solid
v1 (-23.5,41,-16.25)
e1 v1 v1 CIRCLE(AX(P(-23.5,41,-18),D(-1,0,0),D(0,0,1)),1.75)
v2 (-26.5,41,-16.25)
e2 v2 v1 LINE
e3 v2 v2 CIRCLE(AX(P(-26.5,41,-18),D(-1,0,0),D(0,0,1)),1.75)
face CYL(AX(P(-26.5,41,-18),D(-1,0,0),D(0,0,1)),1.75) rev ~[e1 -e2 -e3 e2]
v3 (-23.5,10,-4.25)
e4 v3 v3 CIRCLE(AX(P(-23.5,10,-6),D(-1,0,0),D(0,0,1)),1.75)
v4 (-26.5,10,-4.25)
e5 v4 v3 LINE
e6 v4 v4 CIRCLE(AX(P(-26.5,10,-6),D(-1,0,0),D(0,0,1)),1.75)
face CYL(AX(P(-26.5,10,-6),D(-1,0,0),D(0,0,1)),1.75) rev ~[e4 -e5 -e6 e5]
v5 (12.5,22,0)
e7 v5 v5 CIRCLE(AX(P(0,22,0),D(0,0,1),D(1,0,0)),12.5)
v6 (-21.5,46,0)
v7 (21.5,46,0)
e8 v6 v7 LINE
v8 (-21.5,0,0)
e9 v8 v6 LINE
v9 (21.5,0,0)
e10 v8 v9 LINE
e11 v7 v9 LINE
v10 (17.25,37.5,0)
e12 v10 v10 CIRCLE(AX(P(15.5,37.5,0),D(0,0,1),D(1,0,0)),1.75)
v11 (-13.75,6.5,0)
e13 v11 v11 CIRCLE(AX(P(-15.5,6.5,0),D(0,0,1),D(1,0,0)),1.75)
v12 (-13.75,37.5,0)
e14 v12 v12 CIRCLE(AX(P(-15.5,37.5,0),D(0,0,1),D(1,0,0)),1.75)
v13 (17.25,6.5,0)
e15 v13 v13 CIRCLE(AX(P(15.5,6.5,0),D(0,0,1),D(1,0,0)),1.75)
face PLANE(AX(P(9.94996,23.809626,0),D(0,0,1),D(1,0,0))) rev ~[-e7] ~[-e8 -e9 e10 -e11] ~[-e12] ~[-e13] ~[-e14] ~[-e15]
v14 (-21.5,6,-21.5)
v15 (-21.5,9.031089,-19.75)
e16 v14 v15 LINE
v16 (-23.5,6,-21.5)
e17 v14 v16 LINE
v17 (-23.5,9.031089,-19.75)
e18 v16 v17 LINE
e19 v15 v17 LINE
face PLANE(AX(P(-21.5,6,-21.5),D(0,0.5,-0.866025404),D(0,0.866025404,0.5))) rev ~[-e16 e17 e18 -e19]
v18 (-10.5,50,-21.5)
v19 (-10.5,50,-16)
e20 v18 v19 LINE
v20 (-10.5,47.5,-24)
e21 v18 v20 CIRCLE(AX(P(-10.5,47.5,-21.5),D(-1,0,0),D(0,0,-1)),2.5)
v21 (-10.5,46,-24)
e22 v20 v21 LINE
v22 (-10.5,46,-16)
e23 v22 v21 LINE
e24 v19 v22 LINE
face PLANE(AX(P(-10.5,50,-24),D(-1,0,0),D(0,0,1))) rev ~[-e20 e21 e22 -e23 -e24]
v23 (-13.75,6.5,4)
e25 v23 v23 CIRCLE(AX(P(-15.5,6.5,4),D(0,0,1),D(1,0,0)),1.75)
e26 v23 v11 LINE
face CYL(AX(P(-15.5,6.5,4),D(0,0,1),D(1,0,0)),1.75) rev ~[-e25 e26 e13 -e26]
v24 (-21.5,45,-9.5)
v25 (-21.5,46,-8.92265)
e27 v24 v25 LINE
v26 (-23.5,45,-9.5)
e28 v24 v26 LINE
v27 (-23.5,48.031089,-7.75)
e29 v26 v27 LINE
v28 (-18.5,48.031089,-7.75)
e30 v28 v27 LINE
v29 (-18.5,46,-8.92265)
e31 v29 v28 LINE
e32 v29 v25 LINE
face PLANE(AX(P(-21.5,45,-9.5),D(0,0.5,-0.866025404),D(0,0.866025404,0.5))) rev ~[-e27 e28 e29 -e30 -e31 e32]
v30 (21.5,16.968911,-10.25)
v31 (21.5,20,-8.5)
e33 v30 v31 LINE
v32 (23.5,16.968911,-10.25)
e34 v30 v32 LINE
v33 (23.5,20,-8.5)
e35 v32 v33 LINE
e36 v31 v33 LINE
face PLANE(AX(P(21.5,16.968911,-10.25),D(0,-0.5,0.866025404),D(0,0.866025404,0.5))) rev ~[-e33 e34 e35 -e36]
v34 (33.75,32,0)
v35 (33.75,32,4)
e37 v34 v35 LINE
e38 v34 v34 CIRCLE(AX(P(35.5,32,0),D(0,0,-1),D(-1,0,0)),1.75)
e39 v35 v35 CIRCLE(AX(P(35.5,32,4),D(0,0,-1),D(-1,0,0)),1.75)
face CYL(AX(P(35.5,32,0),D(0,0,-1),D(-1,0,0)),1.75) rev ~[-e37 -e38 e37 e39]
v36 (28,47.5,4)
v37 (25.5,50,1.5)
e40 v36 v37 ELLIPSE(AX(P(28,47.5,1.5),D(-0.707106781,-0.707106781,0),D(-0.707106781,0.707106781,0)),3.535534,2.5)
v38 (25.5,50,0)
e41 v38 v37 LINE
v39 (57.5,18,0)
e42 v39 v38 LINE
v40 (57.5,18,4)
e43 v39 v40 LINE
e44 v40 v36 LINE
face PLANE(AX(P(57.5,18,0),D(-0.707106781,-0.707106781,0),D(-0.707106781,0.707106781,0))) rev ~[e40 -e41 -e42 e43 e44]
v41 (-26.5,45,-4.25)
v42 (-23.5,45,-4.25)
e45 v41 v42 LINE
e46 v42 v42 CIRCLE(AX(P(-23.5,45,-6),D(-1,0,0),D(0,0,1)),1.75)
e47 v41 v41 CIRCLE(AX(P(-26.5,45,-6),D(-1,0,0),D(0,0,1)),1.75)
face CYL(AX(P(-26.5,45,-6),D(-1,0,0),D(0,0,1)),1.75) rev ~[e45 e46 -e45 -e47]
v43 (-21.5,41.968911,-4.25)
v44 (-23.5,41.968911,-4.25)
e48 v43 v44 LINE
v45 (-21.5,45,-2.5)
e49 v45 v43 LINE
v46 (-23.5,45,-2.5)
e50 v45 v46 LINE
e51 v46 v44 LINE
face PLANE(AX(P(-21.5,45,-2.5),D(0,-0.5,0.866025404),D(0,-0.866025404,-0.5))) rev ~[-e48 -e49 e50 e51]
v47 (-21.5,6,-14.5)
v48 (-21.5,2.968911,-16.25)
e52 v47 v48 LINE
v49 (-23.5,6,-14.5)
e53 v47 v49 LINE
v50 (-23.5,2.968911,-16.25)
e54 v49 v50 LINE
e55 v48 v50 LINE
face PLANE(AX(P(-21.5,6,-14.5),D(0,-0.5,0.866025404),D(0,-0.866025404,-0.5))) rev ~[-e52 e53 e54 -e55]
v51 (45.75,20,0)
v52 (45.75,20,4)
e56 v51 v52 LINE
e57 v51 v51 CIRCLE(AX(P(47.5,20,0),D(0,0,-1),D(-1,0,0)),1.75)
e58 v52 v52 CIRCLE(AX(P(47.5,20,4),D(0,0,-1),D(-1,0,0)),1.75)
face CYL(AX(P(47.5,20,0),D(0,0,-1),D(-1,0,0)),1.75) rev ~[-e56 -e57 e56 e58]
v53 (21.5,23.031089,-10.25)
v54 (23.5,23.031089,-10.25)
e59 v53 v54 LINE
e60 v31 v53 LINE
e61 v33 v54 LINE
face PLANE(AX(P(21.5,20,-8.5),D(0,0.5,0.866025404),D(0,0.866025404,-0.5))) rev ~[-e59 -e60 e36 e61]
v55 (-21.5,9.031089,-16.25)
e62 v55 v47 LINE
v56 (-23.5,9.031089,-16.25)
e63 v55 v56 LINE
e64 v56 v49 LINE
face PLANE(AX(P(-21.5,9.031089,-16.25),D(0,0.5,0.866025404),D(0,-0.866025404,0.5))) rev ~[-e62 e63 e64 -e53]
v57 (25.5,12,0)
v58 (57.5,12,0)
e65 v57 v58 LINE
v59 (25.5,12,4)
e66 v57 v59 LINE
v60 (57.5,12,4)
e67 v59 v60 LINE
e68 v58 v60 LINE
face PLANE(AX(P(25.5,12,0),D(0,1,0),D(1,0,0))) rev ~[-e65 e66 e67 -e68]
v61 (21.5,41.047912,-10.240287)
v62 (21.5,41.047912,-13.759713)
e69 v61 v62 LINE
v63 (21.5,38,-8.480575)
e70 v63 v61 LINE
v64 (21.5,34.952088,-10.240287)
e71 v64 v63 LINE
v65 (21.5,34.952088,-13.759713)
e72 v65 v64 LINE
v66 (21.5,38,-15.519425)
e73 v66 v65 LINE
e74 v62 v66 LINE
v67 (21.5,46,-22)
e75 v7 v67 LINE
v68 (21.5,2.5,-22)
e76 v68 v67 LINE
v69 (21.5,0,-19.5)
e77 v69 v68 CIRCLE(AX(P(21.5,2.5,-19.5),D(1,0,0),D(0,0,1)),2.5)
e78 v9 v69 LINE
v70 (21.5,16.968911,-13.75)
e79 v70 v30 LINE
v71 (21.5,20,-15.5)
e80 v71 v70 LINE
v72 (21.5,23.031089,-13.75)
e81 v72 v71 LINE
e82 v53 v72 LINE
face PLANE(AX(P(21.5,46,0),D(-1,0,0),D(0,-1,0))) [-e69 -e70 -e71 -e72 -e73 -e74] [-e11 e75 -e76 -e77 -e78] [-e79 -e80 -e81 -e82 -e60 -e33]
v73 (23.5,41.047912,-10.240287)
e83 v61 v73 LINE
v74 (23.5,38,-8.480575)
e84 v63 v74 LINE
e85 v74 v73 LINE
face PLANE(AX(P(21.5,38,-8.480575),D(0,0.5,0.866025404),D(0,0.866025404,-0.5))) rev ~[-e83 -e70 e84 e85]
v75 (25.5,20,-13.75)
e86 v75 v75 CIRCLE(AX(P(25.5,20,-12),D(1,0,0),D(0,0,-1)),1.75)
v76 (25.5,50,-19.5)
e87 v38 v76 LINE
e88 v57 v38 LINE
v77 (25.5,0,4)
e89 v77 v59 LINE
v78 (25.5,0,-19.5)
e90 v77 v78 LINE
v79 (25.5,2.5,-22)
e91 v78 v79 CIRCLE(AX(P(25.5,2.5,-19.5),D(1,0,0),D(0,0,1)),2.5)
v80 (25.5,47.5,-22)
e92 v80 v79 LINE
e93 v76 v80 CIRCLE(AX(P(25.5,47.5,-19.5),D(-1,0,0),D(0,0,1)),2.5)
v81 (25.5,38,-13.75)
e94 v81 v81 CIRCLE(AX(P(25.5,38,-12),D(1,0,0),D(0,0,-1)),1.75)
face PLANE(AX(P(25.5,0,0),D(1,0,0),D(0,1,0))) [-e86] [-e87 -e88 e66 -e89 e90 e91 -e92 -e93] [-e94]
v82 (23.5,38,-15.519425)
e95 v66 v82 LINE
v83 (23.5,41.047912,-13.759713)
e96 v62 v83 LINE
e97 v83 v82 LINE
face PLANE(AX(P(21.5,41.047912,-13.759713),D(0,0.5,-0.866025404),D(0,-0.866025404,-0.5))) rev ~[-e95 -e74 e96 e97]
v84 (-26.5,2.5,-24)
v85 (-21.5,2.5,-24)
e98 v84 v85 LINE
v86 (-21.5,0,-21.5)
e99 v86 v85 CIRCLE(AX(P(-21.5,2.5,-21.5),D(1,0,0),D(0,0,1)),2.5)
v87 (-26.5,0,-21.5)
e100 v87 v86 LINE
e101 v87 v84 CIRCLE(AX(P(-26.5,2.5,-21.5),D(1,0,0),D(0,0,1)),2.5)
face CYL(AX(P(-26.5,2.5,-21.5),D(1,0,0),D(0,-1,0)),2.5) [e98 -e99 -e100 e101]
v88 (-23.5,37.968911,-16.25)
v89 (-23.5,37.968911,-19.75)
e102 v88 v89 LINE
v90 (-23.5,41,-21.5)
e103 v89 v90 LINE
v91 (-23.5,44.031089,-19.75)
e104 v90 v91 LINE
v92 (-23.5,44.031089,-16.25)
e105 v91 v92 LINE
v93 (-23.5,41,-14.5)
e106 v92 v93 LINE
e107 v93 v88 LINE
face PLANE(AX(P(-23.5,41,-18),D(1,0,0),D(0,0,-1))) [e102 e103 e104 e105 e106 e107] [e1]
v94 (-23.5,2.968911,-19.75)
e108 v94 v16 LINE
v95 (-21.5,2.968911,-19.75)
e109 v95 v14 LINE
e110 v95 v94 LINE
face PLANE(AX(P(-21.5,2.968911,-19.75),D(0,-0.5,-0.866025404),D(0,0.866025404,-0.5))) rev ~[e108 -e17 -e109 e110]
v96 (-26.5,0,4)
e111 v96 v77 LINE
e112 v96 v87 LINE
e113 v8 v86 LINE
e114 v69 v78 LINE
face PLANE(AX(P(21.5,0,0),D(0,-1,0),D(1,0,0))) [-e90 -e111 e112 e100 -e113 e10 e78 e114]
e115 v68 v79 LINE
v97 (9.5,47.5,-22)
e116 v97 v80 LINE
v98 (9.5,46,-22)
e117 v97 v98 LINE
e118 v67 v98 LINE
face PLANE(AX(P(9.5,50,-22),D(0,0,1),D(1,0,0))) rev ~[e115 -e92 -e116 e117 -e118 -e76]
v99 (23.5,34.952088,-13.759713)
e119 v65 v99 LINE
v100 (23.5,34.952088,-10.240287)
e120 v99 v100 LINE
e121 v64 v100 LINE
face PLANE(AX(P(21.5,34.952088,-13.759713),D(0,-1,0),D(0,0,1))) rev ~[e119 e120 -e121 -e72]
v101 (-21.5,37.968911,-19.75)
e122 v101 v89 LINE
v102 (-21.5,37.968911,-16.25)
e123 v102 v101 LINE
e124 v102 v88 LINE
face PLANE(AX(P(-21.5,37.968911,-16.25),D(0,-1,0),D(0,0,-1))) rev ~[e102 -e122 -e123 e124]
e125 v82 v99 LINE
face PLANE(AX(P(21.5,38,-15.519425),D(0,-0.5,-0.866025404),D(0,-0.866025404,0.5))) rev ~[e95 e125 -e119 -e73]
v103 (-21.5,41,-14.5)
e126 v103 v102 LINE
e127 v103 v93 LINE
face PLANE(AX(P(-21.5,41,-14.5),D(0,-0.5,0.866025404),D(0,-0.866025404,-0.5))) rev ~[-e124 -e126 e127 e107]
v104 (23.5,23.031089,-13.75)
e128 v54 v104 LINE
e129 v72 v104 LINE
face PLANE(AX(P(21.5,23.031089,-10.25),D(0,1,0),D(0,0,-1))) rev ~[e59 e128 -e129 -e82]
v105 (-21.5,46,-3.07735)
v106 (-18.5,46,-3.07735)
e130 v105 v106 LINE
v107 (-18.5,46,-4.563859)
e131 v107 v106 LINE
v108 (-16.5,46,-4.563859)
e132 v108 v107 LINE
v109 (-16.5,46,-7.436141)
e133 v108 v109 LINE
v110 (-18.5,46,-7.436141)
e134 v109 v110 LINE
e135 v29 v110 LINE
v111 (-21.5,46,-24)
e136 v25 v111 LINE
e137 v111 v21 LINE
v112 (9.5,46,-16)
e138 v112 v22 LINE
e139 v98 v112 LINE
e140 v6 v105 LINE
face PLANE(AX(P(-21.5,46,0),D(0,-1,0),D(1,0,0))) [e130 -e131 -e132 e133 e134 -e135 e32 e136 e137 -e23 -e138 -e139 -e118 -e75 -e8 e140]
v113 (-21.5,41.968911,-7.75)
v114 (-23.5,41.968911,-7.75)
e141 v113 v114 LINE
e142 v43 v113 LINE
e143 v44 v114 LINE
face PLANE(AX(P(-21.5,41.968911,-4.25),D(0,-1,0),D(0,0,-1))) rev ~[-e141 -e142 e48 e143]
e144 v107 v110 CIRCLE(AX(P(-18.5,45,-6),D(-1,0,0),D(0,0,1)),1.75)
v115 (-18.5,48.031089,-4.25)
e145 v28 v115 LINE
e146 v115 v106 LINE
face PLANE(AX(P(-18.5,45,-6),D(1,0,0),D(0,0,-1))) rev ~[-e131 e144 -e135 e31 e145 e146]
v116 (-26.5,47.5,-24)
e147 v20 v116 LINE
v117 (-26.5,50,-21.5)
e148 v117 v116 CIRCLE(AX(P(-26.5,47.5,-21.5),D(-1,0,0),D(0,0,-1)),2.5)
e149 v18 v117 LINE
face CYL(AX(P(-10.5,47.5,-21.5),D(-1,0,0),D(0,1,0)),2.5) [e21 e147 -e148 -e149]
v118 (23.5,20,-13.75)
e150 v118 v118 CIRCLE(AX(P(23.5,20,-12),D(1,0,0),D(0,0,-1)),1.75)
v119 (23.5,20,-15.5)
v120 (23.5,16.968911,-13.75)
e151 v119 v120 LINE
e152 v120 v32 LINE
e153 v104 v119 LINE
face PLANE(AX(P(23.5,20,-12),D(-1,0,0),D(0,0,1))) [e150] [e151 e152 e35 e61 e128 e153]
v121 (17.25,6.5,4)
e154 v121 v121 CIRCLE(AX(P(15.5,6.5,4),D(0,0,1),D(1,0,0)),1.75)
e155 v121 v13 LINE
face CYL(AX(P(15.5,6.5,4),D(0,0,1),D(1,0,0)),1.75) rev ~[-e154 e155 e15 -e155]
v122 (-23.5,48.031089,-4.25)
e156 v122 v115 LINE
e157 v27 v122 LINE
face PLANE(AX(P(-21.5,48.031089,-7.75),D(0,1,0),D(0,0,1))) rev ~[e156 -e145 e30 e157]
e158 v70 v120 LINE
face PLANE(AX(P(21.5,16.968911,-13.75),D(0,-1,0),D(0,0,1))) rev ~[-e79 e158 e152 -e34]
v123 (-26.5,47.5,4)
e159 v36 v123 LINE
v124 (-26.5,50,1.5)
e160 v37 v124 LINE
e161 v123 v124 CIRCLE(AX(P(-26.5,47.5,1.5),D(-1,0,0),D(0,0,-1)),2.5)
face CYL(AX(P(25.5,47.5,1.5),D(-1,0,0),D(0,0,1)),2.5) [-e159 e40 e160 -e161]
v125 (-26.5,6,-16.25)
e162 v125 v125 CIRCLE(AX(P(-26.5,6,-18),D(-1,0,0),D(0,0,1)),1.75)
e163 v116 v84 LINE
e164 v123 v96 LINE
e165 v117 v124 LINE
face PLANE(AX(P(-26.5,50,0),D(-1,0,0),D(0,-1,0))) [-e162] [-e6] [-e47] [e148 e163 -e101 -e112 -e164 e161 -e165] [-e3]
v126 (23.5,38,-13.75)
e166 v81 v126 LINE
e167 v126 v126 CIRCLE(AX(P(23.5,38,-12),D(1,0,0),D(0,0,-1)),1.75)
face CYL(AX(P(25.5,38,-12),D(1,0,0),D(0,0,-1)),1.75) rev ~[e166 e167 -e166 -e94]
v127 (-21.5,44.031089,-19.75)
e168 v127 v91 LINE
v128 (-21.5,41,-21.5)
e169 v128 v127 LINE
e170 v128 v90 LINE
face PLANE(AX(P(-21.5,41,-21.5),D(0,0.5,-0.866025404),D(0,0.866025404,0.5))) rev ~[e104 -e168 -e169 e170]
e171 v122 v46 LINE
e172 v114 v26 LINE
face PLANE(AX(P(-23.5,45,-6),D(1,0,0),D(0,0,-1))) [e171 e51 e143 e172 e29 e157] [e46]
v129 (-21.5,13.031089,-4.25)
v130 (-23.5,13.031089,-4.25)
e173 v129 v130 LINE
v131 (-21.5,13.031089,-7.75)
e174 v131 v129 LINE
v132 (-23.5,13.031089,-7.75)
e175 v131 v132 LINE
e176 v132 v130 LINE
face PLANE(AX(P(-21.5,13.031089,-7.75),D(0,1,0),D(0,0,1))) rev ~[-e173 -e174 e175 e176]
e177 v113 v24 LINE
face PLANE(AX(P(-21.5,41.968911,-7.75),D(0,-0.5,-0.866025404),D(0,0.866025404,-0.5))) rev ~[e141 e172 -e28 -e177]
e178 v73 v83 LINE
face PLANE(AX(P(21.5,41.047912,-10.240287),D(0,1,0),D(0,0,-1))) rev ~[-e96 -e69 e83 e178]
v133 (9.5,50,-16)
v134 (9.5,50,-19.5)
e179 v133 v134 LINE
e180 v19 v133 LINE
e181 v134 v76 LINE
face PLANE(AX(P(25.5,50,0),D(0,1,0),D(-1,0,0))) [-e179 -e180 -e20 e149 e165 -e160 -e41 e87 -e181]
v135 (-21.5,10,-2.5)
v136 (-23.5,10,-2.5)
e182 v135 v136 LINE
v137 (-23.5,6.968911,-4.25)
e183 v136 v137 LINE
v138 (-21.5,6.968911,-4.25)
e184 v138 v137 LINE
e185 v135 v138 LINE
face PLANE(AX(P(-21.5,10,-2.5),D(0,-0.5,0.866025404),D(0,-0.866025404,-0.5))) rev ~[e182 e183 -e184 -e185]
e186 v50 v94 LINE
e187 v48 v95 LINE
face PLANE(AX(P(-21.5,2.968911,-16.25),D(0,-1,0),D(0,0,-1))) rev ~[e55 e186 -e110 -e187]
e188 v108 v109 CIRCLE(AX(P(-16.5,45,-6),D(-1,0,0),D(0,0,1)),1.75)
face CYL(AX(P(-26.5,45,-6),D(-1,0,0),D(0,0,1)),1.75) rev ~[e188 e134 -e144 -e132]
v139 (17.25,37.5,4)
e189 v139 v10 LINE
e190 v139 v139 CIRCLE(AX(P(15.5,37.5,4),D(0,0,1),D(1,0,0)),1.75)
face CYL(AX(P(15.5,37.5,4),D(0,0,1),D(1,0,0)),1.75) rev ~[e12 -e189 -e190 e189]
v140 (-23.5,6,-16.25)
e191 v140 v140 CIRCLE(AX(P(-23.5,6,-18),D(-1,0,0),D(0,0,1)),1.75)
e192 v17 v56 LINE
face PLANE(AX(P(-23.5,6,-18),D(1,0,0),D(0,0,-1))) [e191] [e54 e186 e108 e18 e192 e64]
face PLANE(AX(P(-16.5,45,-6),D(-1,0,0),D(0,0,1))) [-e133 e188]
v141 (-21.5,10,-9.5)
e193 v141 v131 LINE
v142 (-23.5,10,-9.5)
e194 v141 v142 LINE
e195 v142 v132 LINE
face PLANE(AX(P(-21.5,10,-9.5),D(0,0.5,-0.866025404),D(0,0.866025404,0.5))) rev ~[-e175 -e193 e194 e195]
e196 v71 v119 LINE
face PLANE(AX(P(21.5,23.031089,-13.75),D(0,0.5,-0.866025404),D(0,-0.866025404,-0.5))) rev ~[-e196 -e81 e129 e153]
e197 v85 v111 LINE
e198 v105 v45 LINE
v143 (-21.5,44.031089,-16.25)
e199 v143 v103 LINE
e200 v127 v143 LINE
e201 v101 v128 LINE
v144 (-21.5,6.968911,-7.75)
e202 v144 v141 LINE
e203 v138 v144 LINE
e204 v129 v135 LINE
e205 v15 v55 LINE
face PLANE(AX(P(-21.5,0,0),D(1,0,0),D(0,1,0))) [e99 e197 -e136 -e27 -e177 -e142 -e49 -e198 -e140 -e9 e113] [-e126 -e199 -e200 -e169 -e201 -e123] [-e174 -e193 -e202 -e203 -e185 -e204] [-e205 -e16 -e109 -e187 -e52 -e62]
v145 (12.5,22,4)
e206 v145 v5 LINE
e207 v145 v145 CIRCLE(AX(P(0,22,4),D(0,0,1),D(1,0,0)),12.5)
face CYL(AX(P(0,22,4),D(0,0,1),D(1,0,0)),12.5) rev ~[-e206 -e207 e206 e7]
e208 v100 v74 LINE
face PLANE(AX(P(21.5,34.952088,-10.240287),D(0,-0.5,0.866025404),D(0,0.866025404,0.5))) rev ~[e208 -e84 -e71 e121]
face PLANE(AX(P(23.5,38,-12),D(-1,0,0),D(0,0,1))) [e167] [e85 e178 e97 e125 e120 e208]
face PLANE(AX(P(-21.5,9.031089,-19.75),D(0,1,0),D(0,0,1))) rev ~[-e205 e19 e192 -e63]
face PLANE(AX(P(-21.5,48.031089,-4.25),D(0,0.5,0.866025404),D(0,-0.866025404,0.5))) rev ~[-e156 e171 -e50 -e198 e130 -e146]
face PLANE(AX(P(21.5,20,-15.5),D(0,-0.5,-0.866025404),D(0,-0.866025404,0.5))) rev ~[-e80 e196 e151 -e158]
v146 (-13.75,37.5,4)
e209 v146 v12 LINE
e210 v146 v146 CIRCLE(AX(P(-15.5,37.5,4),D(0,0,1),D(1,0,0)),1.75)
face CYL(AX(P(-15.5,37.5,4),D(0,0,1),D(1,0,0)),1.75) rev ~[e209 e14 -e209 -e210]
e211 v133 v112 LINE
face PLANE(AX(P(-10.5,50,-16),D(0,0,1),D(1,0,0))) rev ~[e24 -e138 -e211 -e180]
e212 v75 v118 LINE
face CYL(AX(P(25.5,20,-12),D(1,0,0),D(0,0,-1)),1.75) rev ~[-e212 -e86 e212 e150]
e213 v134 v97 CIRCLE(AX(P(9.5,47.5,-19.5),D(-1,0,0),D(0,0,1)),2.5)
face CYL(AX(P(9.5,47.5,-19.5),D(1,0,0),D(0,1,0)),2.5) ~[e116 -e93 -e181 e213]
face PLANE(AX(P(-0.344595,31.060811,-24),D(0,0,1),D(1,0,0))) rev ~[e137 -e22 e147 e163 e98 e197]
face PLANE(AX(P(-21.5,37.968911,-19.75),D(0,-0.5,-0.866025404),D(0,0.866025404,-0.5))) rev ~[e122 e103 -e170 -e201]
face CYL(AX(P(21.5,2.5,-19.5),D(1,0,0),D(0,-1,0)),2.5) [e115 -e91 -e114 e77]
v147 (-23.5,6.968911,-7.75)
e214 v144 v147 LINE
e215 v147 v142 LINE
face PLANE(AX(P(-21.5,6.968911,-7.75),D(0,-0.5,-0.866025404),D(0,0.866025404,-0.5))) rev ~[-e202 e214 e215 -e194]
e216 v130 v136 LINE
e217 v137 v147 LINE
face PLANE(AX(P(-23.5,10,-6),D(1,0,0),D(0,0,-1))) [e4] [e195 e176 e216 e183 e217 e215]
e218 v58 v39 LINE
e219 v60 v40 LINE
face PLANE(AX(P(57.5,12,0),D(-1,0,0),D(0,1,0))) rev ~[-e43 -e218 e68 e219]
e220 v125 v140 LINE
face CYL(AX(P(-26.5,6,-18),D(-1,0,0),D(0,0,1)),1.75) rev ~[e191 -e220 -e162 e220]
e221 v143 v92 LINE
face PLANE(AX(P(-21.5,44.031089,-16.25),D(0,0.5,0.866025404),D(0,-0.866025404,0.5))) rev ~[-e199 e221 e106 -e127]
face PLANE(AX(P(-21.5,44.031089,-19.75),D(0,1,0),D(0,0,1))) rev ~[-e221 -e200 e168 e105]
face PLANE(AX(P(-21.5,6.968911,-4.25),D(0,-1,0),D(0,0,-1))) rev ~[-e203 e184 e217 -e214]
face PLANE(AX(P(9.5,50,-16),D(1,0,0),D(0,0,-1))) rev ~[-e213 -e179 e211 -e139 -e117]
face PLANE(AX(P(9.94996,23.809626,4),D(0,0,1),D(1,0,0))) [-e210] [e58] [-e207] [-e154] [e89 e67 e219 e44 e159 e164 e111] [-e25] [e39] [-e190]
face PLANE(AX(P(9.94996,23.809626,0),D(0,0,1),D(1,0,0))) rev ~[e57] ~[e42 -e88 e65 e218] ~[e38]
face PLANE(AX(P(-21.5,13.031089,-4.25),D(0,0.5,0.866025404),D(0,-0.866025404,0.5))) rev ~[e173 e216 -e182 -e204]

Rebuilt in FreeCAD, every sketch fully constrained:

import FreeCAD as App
import Part
import Sketcher
Q = App.Units.Quantity


def edges_at(feature, points):
    """Names of the edges that pass closest to the given points."""
    edges = feature.Shape.Edges
    near = lambda p: min(range(len(edges)), key=lambda i: edges[i].distToShape(Part.Vertex(*p))[0])
    return sorted({f"Edge{near(p) + 1}" for p in points})

doc = App.newDocument("Part")
params = doc.addObject("Spreadsheet::Sheet", "Params")
for row, (alias, value) in enumerate([
    ("sketch1_width", "52 mm"),
    ("sketch1_width2", "32 mm"),
    ("sketch1_height", "50 mm"),
    ("sketch1_height2", "12 mm"),
    ("sketch1_height3", "6 mm"),
    ("pad1_length", "4 mm"),
    ("sketch2_diameter", "25 mm"),
    ("sketch2_diameter2", "3.5 mm"),
    ("sketch3_diameter", "3.5 mm"),
    ("pocket2_length", "4 mm"),
    ("sketch4_width", "4 mm"),
    ("sketch4_width2", "43 mm"),
    ("sketch4_width3", "5 mm"),
    ("sketch4_height", "50 mm"),
    ("sketch4_height2", "46 mm"),
    ("pad2_length", "24 mm"),
    ("sketch5_diameter", "3.5 mm"),
    ("pocket3_length", "4 mm"),
    ("sketch6_diameter", "3.5 mm"),
    ("pocket4_length", "10 mm"),
    ("sketch7_width", "36 mm"),
    ("sketch7_width2", "20 mm"),
    ("sketch7_height", "8 mm"),
    ("sketch7_height2", "6 mm"),
    ("pocket5_length", "50 mm"),
    ("fillet_radius", "2.5 mm"),
    ("sketch8_height", "3.5 mm"),
    ("pocket6_length", "3 mm"),
    ("pocket6_length2", "2 mm"),
    ("sketch9_height", "3.5 mm"),
    ("pocket7_length", "2 mm"),
    ("sketch10_height", "3.5 mm"),
    ("pocket8_length", "2 mm"),
    ("fillet2_radius", "2.5 mm"),
], start=1):
    params.set(f"A{row}", alias)
    params.set(f"B{row}", "=" + value)
    params.setAlias(f"B{row}", alias)

body = doc.addObject("PartDesign::Body", "Body")

sketch1 = doc.addObject("Sketcher::SketchObject", "Sketch")
body.addObject(sketch1)
sketch1.AttachmentSupport = (doc.XY_Plane, [""])
sketch1.MapMode = "FlatFace"
sketch1.addGeometry([
    Part.LineSegment(App.Vector(58, 18, 0), App.Vector(26, 50, 0)),
    Part.LineSegment(App.Vector(26, 50, 0), App.Vector(-26, 50, 0)),
    Part.LineSegment(App.Vector(-26, 50, 0), App.Vector(-26, 0, 0)),
    Part.LineSegment(App.Vector(-26, 0, 0), App.Vector(26, 0, 0)),
    Part.LineSegment(App.Vector(26, 0, 0), App.Vector(26, 12, 0)),
    Part.LineSegment(App.Vector(26, 12, 0), App.Vector(58, 12, 0)),
    Part.LineSegment(App.Vector(58, 12, 0), App.Vector(58, 18, 0)),
], False)
sketch1.addConstraint([
    Sketcher.Constraint("Coincident", 0, 2, 1, 1),
    Sketcher.Constraint("Coincident", 1, 2, 2, 1),
    Sketcher.Constraint("Coincident", 2, 2, 3, 1),
    Sketcher.Constraint("Coincident", 3, 2, 4, 1),
    Sketcher.Constraint("Coincident", 4, 2, 5, 1),
    Sketcher.Constraint("Coincident", 5, 2, 6, 1),
    Sketcher.Constraint("Coincident", 6, 2, 0, 1),
    Sketcher.Constraint("Horizontal", 1),
    Sketcher.Constraint("Vertical", 2),
    Sketcher.Constraint("Horizontal", 3),
    Sketcher.Constraint("Vertical", 4),
    Sketcher.Constraint("Horizontal", 5),
    Sketcher.Constraint("Vertical", 6),
    Sketcher.Constraint("PointOnObject", 2, 2, -1),
    Sketcher.Constraint("Vertical", 0, 2, 3, 2),
    Sketcher.Constraint("DistanceX", 1, 2, 1, 1, 52.0),
    Sketcher.Constraint("DistanceX", 5, 1, 5, 2, 32.0),
    Sketcher.Constraint("DistanceY", 2, 2, 2, 1, 50.0),
    Sketcher.Constraint("DistanceY", 4, 1, 4, 2, 12.0),
    Sketcher.Constraint("DistanceY", 6, 1, 6, 2, 6.0),
    Sketcher.Constraint("DistanceX", -1, 1, 0, 2, 25.5),
])
sketch1.setExpression("Constraints[15]", "Params.sketch1_width")
sketch1.setExpression("Constraints[16]", "Params.sketch1_width2")
sketch1.setExpression("Constraints[17]", "Params.sketch1_height")
sketch1.setExpression("Constraints[18]", "Params.sketch1_height2")
sketch1.setExpression("Constraints[19]", "Params.sketch1_height3")
pad1 = doc.addObject("PartDesign::Pad", "Pad")
body.addObject(pad1)
pad1.Profile = sketch1
pad1.setExpression("Length", "Params.pad1_length")

sketch2 = doc.addObject("Sketcher::SketchObject", "Sketch001")
body.addObject(sketch2)
sketch2.AttachmentSupport = (doc.XY_Plane, [""])
sketch2.MapMode = "FlatFace"
sketch2.AttachmentOffset = App.Placement(App.Vector(0, 0, 4), App.Rotation())
sketch2.addGeometry([
    Part.Circle(App.Vector(0, 22, 0), App.Vector(0, 0, 1), 12.5),
    Part.Circle(App.Vector(15.5, 6.5, 0), App.Vector(0, 0, 1), 1.8),
    Part.Circle(App.Vector(15.5, 37.5, 0), App.Vector(0, 0, 1), 1.8),
    Part.Circle(App.Vector(-15.5, 37.5, 0), App.Vector(0, 0, 1), 1.8),
    Part.Circle(App.Vector(-15.5, 6.5, 0), App.Vector(0, 0, 1), 1.8),
], False)
sketch2.addConstraint([
    Sketcher.Constraint("Equal", 1, 2),
    Sketcher.Constraint("Equal", 2, 3),
    Sketcher.Constraint("Equal", 3, 4),
    Sketcher.Constraint("Symmetric", 2, 3, 3, 3, -2),
    Sketcher.Constraint("Symmetric", 1, 3, 4, 3, -2),
    Sketcher.Constraint("PointOnObject", 0, 3, -2),
    Sketcher.Constraint("Vertical", 1, 3, 2, 3),
    Sketcher.Constraint("Diameter", 0, 25.0),
    Sketcher.Constraint("Diameter", 1, 3.5),
    Sketcher.Constraint("DistanceY", -1, 1, 0, 3, 22.0),
    Sketcher.Constraint("DistanceY", 1, 3, 2, 3, 31.0),
    Sketcher.Constraint("DistanceX", 3, 3, 2, 3, 31.0),
    Sketcher.Constraint("DistanceY", -1, 1, 1, 3, 6.5),
])
sketch2.setExpression("Constraints[7]", "Params.sketch2_diameter")
sketch2.setExpression("Constraints[8]", "Params.sketch2_diameter2")
pocket1 = doc.addObject("PartDesign::Pocket", "Pocket")
body.addObject(pocket1)
pocket1.Profile = sketch2
pocket1.Type = "ThroughAll"

sketch3 = doc.addObject("Sketcher::SketchObject", "Sketch002")
body.addObject(sketch3)
sketch3.AttachmentSupport = (doc.XY_Plane, [""])
sketch3.MapMode = "FlatFace"
sketch3.addGeometry([
    Part.Circle(App.Vector(47.5, 20, 0), App.Vector(0, 0, 1), 1.8),
    Part.Circle(App.Vector(35.5, 32, 0), App.Vector(0, 0, 1), 1.8),
], False)
sketch3.addConstraint([
    Sketcher.Constraint("Equal", 0, 1),
    Sketcher.Constraint("Diameter", 0, 3.5),
    Sketcher.Constraint("DistanceY", -1, 1, 0, 3, 20.0),
    Sketcher.Constraint("DistanceY", -1, 1, 1, 3, 32.0),
    Sketcher.Constraint("DistanceX", 1, 3, 0, 3, 12.0),
    Sketcher.Constraint("DistanceX", -1, 1, 0, 3, 47.5),
])
sketch3.setExpression("Constraints[1]", "Params.sketch3_diameter")
pocket2 = doc.addObject("PartDesign::Pocket", "Pocket001")
body.addObject(pocket2)
pocket2.Profile = sketch3
pocket2.setExpression("Length", "Params.pocket2_length")
pocket2.Reversed = True

sketch4 = doc.addObject("Sketcher::SketchObject", "Sketch003")
body.addObject(sketch4)
sketch4.AttachmentSupport = (doc.XY_Plane, [""])
sketch4.MapMode = "FlatFace"
sketch4.addGeometry([
    Part.LineSegment(App.Vector(25.5, 50, 0), App.Vector(25.5, 0, 0)),
    Part.LineSegment(App.Vector(25.5, 0, 0), App.Vector(21.5, 0, 0)),
    Part.LineSegment(App.Vector(21.5, 0, 0), App.Vector(21.5, 46, 0)),
    Part.LineSegment(App.Vector(21.5, 46, 0), App.Vector(-21.5, 46, 0)),
    Part.LineSegment(App.Vector(-21.5, 46, 0), App.Vector(-21.5, 0, 0)),
    Part.LineSegment(App.Vector(-21.5, 0, 0), App.Vector(-26.5, 0, 0)),
    Part.LineSegment(App.Vector(-26.5, 0, 0), App.Vector(-26.5, 50, 0)),
    Part.LineSegment(App.Vector(-26.5, 50, 0), App.Vector(25.5, 50, 0)),
], False)
sketch4.addConstraint([
    Sketcher.Constraint("Coincident", 0, 2, 1, 1),
    Sketcher.Constraint("Coincident", 1, 2, 2, 1),
    Sketcher.Constraint("Coincident", 2, 2, 3, 1),
    Sketcher.Constraint("Coincident", 3, 2, 4, 1),
    Sketcher.Constraint("Coincident", 4, 2, 5, 1),
    Sketcher.Constraint("Coincident", 5, 2, 6, 1),
    Sketcher.Constraint("Coincident", 6, 2, 7, 1),
    Sketcher.Constraint("Coincident", 7, 2, 0, 1),
    Sketcher.Constraint("Vertical", 0),
    Sketcher.Constraint("Horizontal", 1),
    Sketcher.Constraint("Vertical", 2),
    Sketcher.Constraint("Horizontal", 3),
    Sketcher.Constraint("Vertical", 4),
    Sketcher.Constraint("Horizontal", 5),
    Sketcher.Constraint("Vertical", 6),
    Sketcher.Constraint("Horizontal", 7),
    Sketcher.Constraint("Symmetric", 1, 2, 4, 2, -1, 1),
    Sketcher.Constraint("PointOnObject", 0, 2, -1),
    Sketcher.Constraint("DistanceX", 1, 2, 1, 1, 4.0),
    Sketcher.Constraint("DistanceX", 3, 2, 3, 1, 43.0),
    Sketcher.Constraint("DistanceX", 5, 2, 5, 1, 5.0),
    Sketcher.Constraint("DistanceY", 0, 2, 0, 1, 50.0),
    Sketcher.Constraint("DistanceY", 2, 1, 2, 2, 46.0),
])
sketch4.setExpression("Constraints[18]", "Params.sketch4_width")
sketch4.setExpression("Constraints[19]", "Params.sketch4_width2")
sketch4.setExpression("Constraints[20]", "Params.sketch4_width3")
sketch4.setExpression("Constraints[21]", "Params.sketch4_height")
sketch4.setExpression("Constraints[22]", "Params.sketch4_height2")
pad2 = doc.addObject("PartDesign::Pad", "Pad001")
body.addObject(pad2)
pad2.Profile = sketch4
pad2.setExpression("Length", "Params.pad2_length")
pad2.Reversed = True

sketch5 = doc.addObject("Sketcher::SketchObject", "Sketch004")
body.addObject(sketch5)
sketch5.AttachmentSupport = (doc.YZ_Plane, [""])
sketch5.MapMode = "FlatFace"
sketch5.AttachmentOffset = App.Placement(App.Vector(0, 0, 25.5), App.Rotation())
sketch5.addGeometry([
    Part.Circle(App.Vector(38, -12, 0), App.Vector(0, 0, 1), 1.8),
    Part.Circle(App.Vector(20, -12, 0), App.Vector(0, 0, 1), 1.8),
], False)
sketch5.addConstraint([
    Sketcher.Constraint("Equal", 0, 1),
    Sketcher.Constraint("Horizontal", 0, 3, 1, 3),
    Sketcher.Constraint("Diameter", 0, 3.5),
    Sketcher.Constraint("DistanceX", -1, 1, 0, 3, 38.0),
    Sketcher.Constraint("DistanceY", 0, 3, -1, 1, 12.0),
    Sketcher.Constraint("DistanceX", -1, 1, 1, 3, 20.0),
])
sketch5.setExpression("Constraints[2]", "Params.sketch5_diameter")
pocket3 = doc.addObject("PartDesign::Pocket", "Pocket002")
body.addObject(pocket3)
pocket3.Profile = sketch5
pocket3.setExpression("Length", "Params.pocket3_length")

sketch6 = doc.addObject("Sketcher::SketchObject", "Sketch005")
body.addObject(sketch6)
sketch6.AttachmentSupport = (doc.YZ_Plane, [""])
sketch6.MapMode = "FlatFace"
sketch6.AttachmentOffset = App.Placement(App.Vector(0, 0, -26.5), App.Rotation())
sketch6.addGeometry([
    Part.Circle(App.Vector(6, -18, 0), App.Vector(0, 0, 1), 1.8),
    Part.Circle(App.Vector(41, -18, 0), App.Vector(0, 0, 1), 1.8),
    Part.Circle(App.Vector(10, -6, 0), App.Vector(0, 0, 1), 1.8),
    Part.Circle(App.Vector(45, -6, 0), App.Vector(0, 0, 1), 1.8),
], False)
sketch6.addConstraint([
    Sketcher.Constraint("Equal", 0, 1),
    Sketcher.Constraint("Equal", 1, 2),
    Sketcher.Constraint("Equal", 2, 3),
    Sketcher.Constraint("Horizontal", 0, 3, 1, 3),
    Sketcher.Constraint("Horizontal", 2, 3, 3, 3),
    Sketcher.Constraint("Diameter", 0, 3.5),
    Sketcher.Constraint("DistanceX", -1, 1, 0, 3, 6.0),
    Sketcher.Constraint("DistanceY", 0, 3, -1, 1, 18.0),
    Sketcher.Constraint("DistanceX", -1, 1, 1, 3, 41.0),
    Sketcher.Constraint("DistanceX", -1, 1, 2, 3, 10.0),
    Sketcher.Constraint("DistanceY", 2, 3, -1, 1, 6.0),
    Sketcher.Constraint("DistanceX", -1, 1, 3, 3, 45.0),
])
sketch6.setExpression("Constraints[5]", "Params.sketch6_diameter")
pocket4 = doc.addObject("PartDesign::Pocket", "Pocket003")
body.addObject(pocket4)
pocket4.Profile = sketch6
pocket4.setExpression("Length", "Params.pocket4_length")
pocket4.Reversed = True

sketch7 = doc.addObject("Sketcher::SketchObject", "Sketch006")
body.addObject(sketch7)
sketch7.AttachmentSupport = (doc.XZ_Plane, [""])
sketch7.MapMode = "FlatFace"
sketch7.AttachmentOffset = App.Placement(App.Vector(0, 0, -50), App.Rotation())
sketch7.addGeometry([
    Part.LineSegment(App.Vector(25.5, -24, 0), App.Vector(-10.5, -24, 0)),
    Part.LineSegment(App.Vector(-10.5, -24, 0), App.Vector(-10.5, -16, 0)),
    Part.LineSegment(App.Vector(-10.5, -16, 0), App.Vector(9.5, -16, 0)),
    Part.LineSegment(App.Vector(9.5, -16, 0), App.Vector(9.5, -22, 0)),
    Part.LineSegment(App.Vector(9.5, -22, 0), App.Vector(25.5, -22, 0)),
    Part.LineSegment(App.Vector(25.5, -22, 0), App.Vector(25.5, -24, 0)),
], False)
sketch7.addConstraint([
    Sketcher.Constraint("Coincident", 0, 2, 1, 1),
    Sketcher.Constraint("Coincident", 1, 2, 2, 1),
    Sketcher.Constraint("Coincident", 2, 2, 3, 1),
    Sketcher.Constraint("Coincident", 3, 2, 4, 1),
    Sketcher.Constraint("Coincident", 4, 2, 5, 1),
    Sketcher.Constraint("Coincident", 5, 2, 0, 1),
    Sketcher.Constraint("Horizontal", 0),
    Sketcher.Constraint("Vertical", 1),
    Sketcher.Constraint("Horizontal", 2),
    Sketcher.Constraint("Vertical", 3),
    Sketcher.Constraint("Horizontal", 4),
    Sketcher.Constraint("Vertical", 5),
    Sketcher.Constraint("DistanceX", 0, 2, 0, 1, 36.0),
    Sketcher.Constraint("DistanceX", 2, 1, 2, 2, 20.0),
    Sketcher.Constraint("DistanceY", 1, 1, 1, 2, 8.0),
    Sketcher.Constraint("DistanceY", 3, 2, 3, 1, 6.0),
    Sketcher.Constraint("DistanceY", 0, 2, -1, 1, 24.0),
    Sketcher.Constraint("DistanceX", 0, 2, -1, 1, 10.5),
])
sketch7.setExpression("Constraints[12]", "Params.sketch7_width")
sketch7.setExpression("Constraints[13]", "Params.sketch7_width2")
sketch7.setExpression("Constraints[14]", "Params.sketch7_height")
sketch7.setExpression("Constraints[15]", "Params.sketch7_height2")
pocket5 = doc.addObject("PartDesign::Pocket", "Pocket004")
body.addObject(pocket5)
pocket5.Profile = sketch7
pocket5.setExpression("Length", "Params.pocket5_length")
pocket5.Reversed = True
doc.recompute()

fillet = doc.addObject("PartDesign::Fillet", "Fillet")
body.addObject(fillet)
fillet.Base = (pocket5, edges_at(pocket5, [
    (23.5, 0, -22),
    (17.5, 50, -22),
    (-24, 0, -24),
    (-18.5, 50, -24),
]))
fillet.setExpression("Radius", "Params.fillet_radius")

sketch8 = doc.addObject("Sketcher::SketchObject", "Sketch007")
body.addObject(sketch8)
sketch8.AttachmentSupport = (doc.YZ_Plane, [""])
sketch8.MapMode = "FlatFace"
sketch8.AttachmentOffset = App.Placement(App.Vector(0, 0, -21.5), App.Rotation())
sketch8.addGeometry([
    Part.LineSegment(App.Vector(42, -7.8, 0), App.Vector(45, -9.5, 0)),
    Part.LineSegment(App.Vector(45, -9.5, 0), App.Vector(48, -7.8, 0)),
    Part.LineSegment(App.Vector(48, -7.8, 0), App.Vector(48, -4.2, 0)),
    Part.LineSegment(App.Vector(48, -4.2, 0), App.Vector(45, -2.5, 0)),
    Part.LineSegment(App.Vector(45, -2.5, 0), App.Vector(42, -4.2, 0)),
    Part.LineSegment(App.Vector(42, -4.2, 0), App.Vector(42, -7.8, 0)),
], False)
sketch8.addConstraint([
    Sketcher.Constraint("Coincident", 0, 2, 1, 1),
    Sketcher.Constraint("Coincident", 1, 2, 2, 1),
    Sketcher.Constraint("Coincident", 2, 2, 3, 1),
    Sketcher.Constraint("Coincident", 3, 2, 4, 1),
    Sketcher.Constraint("Coincident", 4, 2, 5, 1),
    Sketcher.Constraint("Coincident", 5, 2, 0, 1),
    Sketcher.Constraint("Vertical", 2),
    Sketcher.Constraint("Vertical", 5),
    Sketcher.Constraint("Parallel", 0, 3),
    Sketcher.Constraint("Parallel", 1, 4),
    Sketcher.Constraint("Horizontal", 2, 2, 4, 2),
    Sketcher.Constraint("Horizontal", 1, 2, 5, 2),
    Sketcher.Constraint("Vertical", 0, 2, 3, 2),
    Sketcher.Constraint("Angle", 0, Q("-30 deg")),
    Sketcher.Constraint("DistanceY", 2, 1, 2, 2, 3.5),
    Sketcher.Constraint("DistanceX", -1, 1, 0, 2, 45.0),
    Sketcher.Constraint("DistanceY", 0, 2, 3, 2, 7.0),
    Sketcher.Constraint("DistanceY", 0, 2, -1, 1, 9.5),
])
sketch8.setExpression("Constraints[14]", "Params.sketch8_height")
pocket6 = doc.addObject("PartDesign::Pocket", "Pocket005")
body.addObject(pocket6)
pocket6.Profile = sketch8
pocket6.Type = "TwoLengths"
pocket6.setExpression("Length", "Params.pocket6_length")
pocket6.setExpression("Length2", "Params.pocket6_length2")
pocket6.Reversed = True

sketch9 = doc.addObject("Sketcher::SketchObject", "Sketch008")
body.addObject(sketch9)
sketch9.AttachmentSupport = (doc.YZ_Plane, [""])
sketch9.MapMode = "FlatFace"
sketch9.AttachmentOffset = App.Placement(App.Vector(0, 0, -21.5), App.Rotation())
sketch9.addGeometry([
    Part.LineSegment(App.Vector(38, -19.8, 0), App.Vector(41, -21.5, 0)),
    Part.LineSegment(App.Vector(41, -21.5, 0), App.Vector(44, -19.8, 0)),
    Part.LineSegment(App.Vector(44, -19.8, 0), App.Vector(44, -16.2, 0)),
    Part.LineSegment(App.Vector(44, -16.2, 0), App.Vector(41, -14.5, 0)),
    Part.LineSegment(App.Vector(41, -14.5, 0), App.Vector(38, -16.2, 0)),
    Part.LineSegment(App.Vector(38, -16.2, 0), App.Vector(38, -19.8, 0)),
    Part.LineSegment(App.Vector(7, -7.8, 0), App.Vector(10, -9.5, 0)),
    Part.LineSegment(App.Vector(10, -9.5, 0), App.Vector(13, -7.8, 0)),
    Part.LineSegment(App.Vector(13, -7.8, 0), App.Vector(13, -4.2, 0)),
    Part.LineSegment(App.Vector(13, -4.2, 0), App.Vector(10, -2.5, 0)),
    Part.LineSegment(App.Vector(10, -2.5, 0), App.Vector(7, -4.2, 0)),
    Part.LineSegment(App.Vector(7, -4.2, 0), App.Vector(7, -7.8, 0)),
    Part.LineSegment(App.Vector(3, -16.2, 0), App.Vector(3, -19.8, 0)),
    Part.LineSegment(App.Vector(3, -19.8, 0), App.Vector(6, -21.5, 0)),
    Part.LineSegment(App.Vector(6, -21.5, 0), App.Vector(9, -19.8, 0)),
    Part.LineSegment(App.Vector(9, -19.8, 0), App.Vector(9, -16.2, 0)),
    Part.LineSegment(App.Vector(9, -16.2, 0), App.Vector(6, -14.5, 0)),
    Part.LineSegment(App.Vector(6, -14.5, 0), App.Vector(3, -16.2, 0)),
], False)
sketch9.addConstraint([
    Sketcher.Constraint("Coincident", 0, 2, 1, 1),
    Sketcher.Constraint("Coincident", 1, 2, 2, 1),
    Sketcher.Constraint("Coincident", 2, 2, 3, 1),
    Sketcher.Constraint("Coincident", 3, 2, 4, 1),
    Sketcher.Constraint("Coincident", 4, 2, 5, 1),
    Sketcher.Constraint("Coincident", 5, 2, 0, 1),
    Sketcher.Constraint("Coincident", 6, 2, 7, 1),
    Sketcher.Constraint("Coincident", 7, 2, 8, 1),
    Sketcher.Constraint("Coincident", 8, 2, 9, 1),
    Sketcher.Constraint("Coincident", 9, 2, 10, 1),
    Sketcher.Constraint("Coincident", 10, 2, 11, 1),
    Sketcher.Constraint("Coincident", 11, 2, 6, 1),
    Sketcher.Constraint("Coincident", 12, 2, 13, 1),
    Sketcher.Constraint("Coincident", 13, 2, 14, 1),
    Sketcher.Constraint("Coincident", 14, 2, 15, 1),
    Sketcher.Constraint("Coincident", 15, 2, 16, 1),
    Sketcher.Constraint("Coincident", 16, 2, 17, 1),
    Sketcher.Constraint("Coincident", 17, 2, 12, 1),
    Sketcher.Constraint("Vertical", 2),
    Sketcher.Constraint("Vertical", 5),
    Sketcher.Constraint("Vertical", 8),
    Sketcher.Constraint("Vertical", 11),
    Sketcher.Constraint("Vertical", 12),
    Sketcher.Constraint("Vertical", 15),
    Sketcher.Constraint("Parallel", 0, 3),
    Sketcher.Constraint("Parallel", 1, 4),
    Sketcher.Constraint("Parallel", 3, 6),
    Sketcher.Constraint("Parallel", 4, 7),
    Sketcher.Constraint("Parallel", 6, 9),
    Sketcher.Constraint("Parallel", 7, 10),
    Sketcher.Constraint("Parallel", 9, 13),
    Sketcher.Constraint("Parallel", 10, 14),
    Sketcher.Constraint("Parallel", 13, 16),
    Sketcher.Constraint("Parallel", 14, 17),
    Sketcher.Constraint("Horizontal", 2, 2, 4, 2),
    Sketcher.Constraint("Horizontal", 1, 2, 5, 2),
    Sketcher.Constraint("Horizontal", 8, 2, 10, 2),
    Sketcher.Constraint("Horizontal", 7, 2, 11, 2),
    Sketcher.Constraint("Horizontal", 5, 2, 12, 2),
    Sketcher.Constraint("Horizontal", 0, 2, 13, 2),
    Sketcher.Constraint("Horizontal", 12, 2, 14, 2),
    Sketcher.Constraint("Horizontal", 4, 2, 15, 2),
    Sketcher.Constraint("Horizontal", 3, 2, 16, 2),
    Sketcher.Constraint("Vertical", 0, 2, 3, 2),
    Sketcher.Constraint("Equal", 5, 8),
    Sketcher.Constraint("Equal", 4, 6),
    Sketcher.Constraint("Angle", 0, Q("-30 deg")),
    Sketcher.Constraint("DistanceY", 2, 1, 2, 2, 3.5),
    Sketcher.Constraint("DistanceX", -1, 1, 0, 2, 41.0),
    Sketcher.Constraint("DistanceX", -1, 1, 6, 2, 10.0),
    Sketcher.Constraint("DistanceX", -1, 1, 13, 2, 6.0),
    Sketcher.Constraint("DistanceY", 0, 2, 3, 2, 7.0),
    Sketcher.Constraint("DistanceY", 3, 2, 6, 2, 5.0),
    Sketcher.Constraint("DistanceY", 0, 2, -1, 1, 21.5),
])
sketch9.setExpression("Constraints[47]", "Params.sketch9_height")
pocket7 = doc.addObject("PartDesign::Pocket", "Pocket006")
body.addObject(pocket7)
pocket7.Profile = sketch9
pocket7.setExpression("Length", "Params.pocket7_length")

sketch10 = doc.addObject("Sketcher::SketchObject", "Sketch009")
body.addObject(sketch10)
sketch10.AttachmentSupport = (doc.YZ_Plane, [""])
sketch10.MapMode = "FlatFace"
sketch10.AttachmentOffset = App.Placement(App.Vector(0, 0, 21.5), App.Rotation())
sketch10.addGeometry([
    Part.LineSegment(App.Vector(41, -10.2, 0), App.Vector(41, -13.8, 0)),
    Part.LineSegment(App.Vector(41, -13.8, 0), App.Vector(38, -15.5, 0)),
    Part.LineSegment(App.Vector(38, -15.5, 0), App.Vector(35, -13.8, 0)),
    Part.LineSegment(App.Vector(35, -13.8, 0), App.Vector(35, -10.2, 0)),
    Part.LineSegment(App.Vector(35, -10.2, 0), App.Vector(38, -8.5, 0)),
    Part.LineSegment(App.Vector(38, -8.5, 0), App.Vector(41, -10.2, 0)),
    Part.LineSegment(App.Vector(23, -10.2, 0), App.Vector(23, -13.8, 0)),
    Part.LineSegment(App.Vector(23, -13.8, 0), App.Vector(20, -15.5, 0)),
    Part.LineSegment(App.Vector(20, -15.5, 0), App.Vector(17, -13.8, 0)),
    Part.LineSegment(App.Vector(17, -13.8, 0), App.Vector(17, -10.2, 0)),
    Part.LineSegment(App.Vector(17, -10.2, 0), App.Vector(20, -8.5, 0)),
    Part.LineSegment(App.Vector(20, -8.5, 0), App.Vector(23, -10.2, 0)),
], False)
sketch10.addConstraint([
    Sketcher.Constraint("Coincident", 0, 2, 1, 1),
    Sketcher.Constraint("Coincident", 1, 2, 2, 1),
    Sketcher.Constraint("Coincident", 2, 2, 3, 1),
    Sketcher.Constraint("Coincident", 3, 2, 4, 1),
    Sketcher.Constraint("Coincident", 4, 2, 5, 1),
    Sketcher.Constraint("Coincident", 5, 2, 0, 1),
    Sketcher.Constraint("Coincident", 6, 2, 7, 1),
    Sketcher.Constraint("Coincident", 7, 2, 8, 1),
    Sketcher.Constraint("Coincident", 8, 2, 9, 1),
    Sketcher.Constraint("Coincident", 9, 2, 10, 1),
    Sketcher.Constraint("Coincident", 10, 2, 11, 1),
    Sketcher.Constraint("Coincident", 11, 2, 6, 1),
    Sketcher.Constraint("Vertical", 0),
    Sketcher.Constraint("Vertical", 3),
    Sketcher.Constraint("Vertical", 6),
    Sketcher.Constraint("Vertical", 9),
    Sketcher.Constraint("Parallel", 1, 4),
    Sketcher.Constraint("Parallel", 2, 5),
    Sketcher.Constraint("Parallel", 4, 7),
    Sketcher.Constraint("Parallel", 5, 8),
    Sketcher.Constraint("Parallel", 7, 10),
    Sketcher.Constraint("Parallel", 8, 11),
    Sketcher.Constraint("Horizontal", 0, 2, 2, 2),
    Sketcher.Constraint("Horizontal", 3, 2, 5, 2),
    Sketcher.Constraint("Horizontal", 6, 2, 8, 2),
    Sketcher.Constraint("Horizontal", 9, 2, 11, 2),
    Sketcher.Constraint("Vertical", 1, 2, 4, 2),
    Sketcher.Constraint("Angle", 1, Q("-150 deg")),
    Sketcher.Constraint("DistanceY", 6, 2, 6, 1, 3.5),
    Sketcher.Constraint("DistanceX", -1, 1, 1, 2, 38.0),
    Sketcher.Constraint("DistanceX", -1, 1, 7, 2, 20.0),
    Sketcher.Constraint("DistanceY", 7, 2, 10, 2, 7.0),
    Sketcher.Constraint("DistanceY", 7, 2, -1, 1, 15.5),
    Sketcher.Constraint("DistanceX", 6, 2, 2, 2, 11.921),
    Sketcher.Constraint("DistanceY", 0, 2, 0, 1, 3.519425),
    Sketcher.Constraint("DistanceY", 0, 2, -1, 1, 13.759713),
])
sketch10.setExpression("Constraints[28]", "Params.sketch10_height")
pocket8 = doc.addObject("PartDesign::Pocket", "Pocket007")
body.addObject(pocket8)
pocket8.Profile = sketch10
pocket8.setExpression("Length", "Params.pocket8_length")
pocket8.Reversed = True
doc.recompute()

fillet2 = doc.addObject("PartDesign::Fillet", "Fillet001")
body.addObject(fillet2)
fillet2.Base = (pocket8, edges_at(pocket8, [(-0.5, 50, 4)]))
fillet2.setExpression("Radius", "Params.fillet2_radius")

doc.recompute()
